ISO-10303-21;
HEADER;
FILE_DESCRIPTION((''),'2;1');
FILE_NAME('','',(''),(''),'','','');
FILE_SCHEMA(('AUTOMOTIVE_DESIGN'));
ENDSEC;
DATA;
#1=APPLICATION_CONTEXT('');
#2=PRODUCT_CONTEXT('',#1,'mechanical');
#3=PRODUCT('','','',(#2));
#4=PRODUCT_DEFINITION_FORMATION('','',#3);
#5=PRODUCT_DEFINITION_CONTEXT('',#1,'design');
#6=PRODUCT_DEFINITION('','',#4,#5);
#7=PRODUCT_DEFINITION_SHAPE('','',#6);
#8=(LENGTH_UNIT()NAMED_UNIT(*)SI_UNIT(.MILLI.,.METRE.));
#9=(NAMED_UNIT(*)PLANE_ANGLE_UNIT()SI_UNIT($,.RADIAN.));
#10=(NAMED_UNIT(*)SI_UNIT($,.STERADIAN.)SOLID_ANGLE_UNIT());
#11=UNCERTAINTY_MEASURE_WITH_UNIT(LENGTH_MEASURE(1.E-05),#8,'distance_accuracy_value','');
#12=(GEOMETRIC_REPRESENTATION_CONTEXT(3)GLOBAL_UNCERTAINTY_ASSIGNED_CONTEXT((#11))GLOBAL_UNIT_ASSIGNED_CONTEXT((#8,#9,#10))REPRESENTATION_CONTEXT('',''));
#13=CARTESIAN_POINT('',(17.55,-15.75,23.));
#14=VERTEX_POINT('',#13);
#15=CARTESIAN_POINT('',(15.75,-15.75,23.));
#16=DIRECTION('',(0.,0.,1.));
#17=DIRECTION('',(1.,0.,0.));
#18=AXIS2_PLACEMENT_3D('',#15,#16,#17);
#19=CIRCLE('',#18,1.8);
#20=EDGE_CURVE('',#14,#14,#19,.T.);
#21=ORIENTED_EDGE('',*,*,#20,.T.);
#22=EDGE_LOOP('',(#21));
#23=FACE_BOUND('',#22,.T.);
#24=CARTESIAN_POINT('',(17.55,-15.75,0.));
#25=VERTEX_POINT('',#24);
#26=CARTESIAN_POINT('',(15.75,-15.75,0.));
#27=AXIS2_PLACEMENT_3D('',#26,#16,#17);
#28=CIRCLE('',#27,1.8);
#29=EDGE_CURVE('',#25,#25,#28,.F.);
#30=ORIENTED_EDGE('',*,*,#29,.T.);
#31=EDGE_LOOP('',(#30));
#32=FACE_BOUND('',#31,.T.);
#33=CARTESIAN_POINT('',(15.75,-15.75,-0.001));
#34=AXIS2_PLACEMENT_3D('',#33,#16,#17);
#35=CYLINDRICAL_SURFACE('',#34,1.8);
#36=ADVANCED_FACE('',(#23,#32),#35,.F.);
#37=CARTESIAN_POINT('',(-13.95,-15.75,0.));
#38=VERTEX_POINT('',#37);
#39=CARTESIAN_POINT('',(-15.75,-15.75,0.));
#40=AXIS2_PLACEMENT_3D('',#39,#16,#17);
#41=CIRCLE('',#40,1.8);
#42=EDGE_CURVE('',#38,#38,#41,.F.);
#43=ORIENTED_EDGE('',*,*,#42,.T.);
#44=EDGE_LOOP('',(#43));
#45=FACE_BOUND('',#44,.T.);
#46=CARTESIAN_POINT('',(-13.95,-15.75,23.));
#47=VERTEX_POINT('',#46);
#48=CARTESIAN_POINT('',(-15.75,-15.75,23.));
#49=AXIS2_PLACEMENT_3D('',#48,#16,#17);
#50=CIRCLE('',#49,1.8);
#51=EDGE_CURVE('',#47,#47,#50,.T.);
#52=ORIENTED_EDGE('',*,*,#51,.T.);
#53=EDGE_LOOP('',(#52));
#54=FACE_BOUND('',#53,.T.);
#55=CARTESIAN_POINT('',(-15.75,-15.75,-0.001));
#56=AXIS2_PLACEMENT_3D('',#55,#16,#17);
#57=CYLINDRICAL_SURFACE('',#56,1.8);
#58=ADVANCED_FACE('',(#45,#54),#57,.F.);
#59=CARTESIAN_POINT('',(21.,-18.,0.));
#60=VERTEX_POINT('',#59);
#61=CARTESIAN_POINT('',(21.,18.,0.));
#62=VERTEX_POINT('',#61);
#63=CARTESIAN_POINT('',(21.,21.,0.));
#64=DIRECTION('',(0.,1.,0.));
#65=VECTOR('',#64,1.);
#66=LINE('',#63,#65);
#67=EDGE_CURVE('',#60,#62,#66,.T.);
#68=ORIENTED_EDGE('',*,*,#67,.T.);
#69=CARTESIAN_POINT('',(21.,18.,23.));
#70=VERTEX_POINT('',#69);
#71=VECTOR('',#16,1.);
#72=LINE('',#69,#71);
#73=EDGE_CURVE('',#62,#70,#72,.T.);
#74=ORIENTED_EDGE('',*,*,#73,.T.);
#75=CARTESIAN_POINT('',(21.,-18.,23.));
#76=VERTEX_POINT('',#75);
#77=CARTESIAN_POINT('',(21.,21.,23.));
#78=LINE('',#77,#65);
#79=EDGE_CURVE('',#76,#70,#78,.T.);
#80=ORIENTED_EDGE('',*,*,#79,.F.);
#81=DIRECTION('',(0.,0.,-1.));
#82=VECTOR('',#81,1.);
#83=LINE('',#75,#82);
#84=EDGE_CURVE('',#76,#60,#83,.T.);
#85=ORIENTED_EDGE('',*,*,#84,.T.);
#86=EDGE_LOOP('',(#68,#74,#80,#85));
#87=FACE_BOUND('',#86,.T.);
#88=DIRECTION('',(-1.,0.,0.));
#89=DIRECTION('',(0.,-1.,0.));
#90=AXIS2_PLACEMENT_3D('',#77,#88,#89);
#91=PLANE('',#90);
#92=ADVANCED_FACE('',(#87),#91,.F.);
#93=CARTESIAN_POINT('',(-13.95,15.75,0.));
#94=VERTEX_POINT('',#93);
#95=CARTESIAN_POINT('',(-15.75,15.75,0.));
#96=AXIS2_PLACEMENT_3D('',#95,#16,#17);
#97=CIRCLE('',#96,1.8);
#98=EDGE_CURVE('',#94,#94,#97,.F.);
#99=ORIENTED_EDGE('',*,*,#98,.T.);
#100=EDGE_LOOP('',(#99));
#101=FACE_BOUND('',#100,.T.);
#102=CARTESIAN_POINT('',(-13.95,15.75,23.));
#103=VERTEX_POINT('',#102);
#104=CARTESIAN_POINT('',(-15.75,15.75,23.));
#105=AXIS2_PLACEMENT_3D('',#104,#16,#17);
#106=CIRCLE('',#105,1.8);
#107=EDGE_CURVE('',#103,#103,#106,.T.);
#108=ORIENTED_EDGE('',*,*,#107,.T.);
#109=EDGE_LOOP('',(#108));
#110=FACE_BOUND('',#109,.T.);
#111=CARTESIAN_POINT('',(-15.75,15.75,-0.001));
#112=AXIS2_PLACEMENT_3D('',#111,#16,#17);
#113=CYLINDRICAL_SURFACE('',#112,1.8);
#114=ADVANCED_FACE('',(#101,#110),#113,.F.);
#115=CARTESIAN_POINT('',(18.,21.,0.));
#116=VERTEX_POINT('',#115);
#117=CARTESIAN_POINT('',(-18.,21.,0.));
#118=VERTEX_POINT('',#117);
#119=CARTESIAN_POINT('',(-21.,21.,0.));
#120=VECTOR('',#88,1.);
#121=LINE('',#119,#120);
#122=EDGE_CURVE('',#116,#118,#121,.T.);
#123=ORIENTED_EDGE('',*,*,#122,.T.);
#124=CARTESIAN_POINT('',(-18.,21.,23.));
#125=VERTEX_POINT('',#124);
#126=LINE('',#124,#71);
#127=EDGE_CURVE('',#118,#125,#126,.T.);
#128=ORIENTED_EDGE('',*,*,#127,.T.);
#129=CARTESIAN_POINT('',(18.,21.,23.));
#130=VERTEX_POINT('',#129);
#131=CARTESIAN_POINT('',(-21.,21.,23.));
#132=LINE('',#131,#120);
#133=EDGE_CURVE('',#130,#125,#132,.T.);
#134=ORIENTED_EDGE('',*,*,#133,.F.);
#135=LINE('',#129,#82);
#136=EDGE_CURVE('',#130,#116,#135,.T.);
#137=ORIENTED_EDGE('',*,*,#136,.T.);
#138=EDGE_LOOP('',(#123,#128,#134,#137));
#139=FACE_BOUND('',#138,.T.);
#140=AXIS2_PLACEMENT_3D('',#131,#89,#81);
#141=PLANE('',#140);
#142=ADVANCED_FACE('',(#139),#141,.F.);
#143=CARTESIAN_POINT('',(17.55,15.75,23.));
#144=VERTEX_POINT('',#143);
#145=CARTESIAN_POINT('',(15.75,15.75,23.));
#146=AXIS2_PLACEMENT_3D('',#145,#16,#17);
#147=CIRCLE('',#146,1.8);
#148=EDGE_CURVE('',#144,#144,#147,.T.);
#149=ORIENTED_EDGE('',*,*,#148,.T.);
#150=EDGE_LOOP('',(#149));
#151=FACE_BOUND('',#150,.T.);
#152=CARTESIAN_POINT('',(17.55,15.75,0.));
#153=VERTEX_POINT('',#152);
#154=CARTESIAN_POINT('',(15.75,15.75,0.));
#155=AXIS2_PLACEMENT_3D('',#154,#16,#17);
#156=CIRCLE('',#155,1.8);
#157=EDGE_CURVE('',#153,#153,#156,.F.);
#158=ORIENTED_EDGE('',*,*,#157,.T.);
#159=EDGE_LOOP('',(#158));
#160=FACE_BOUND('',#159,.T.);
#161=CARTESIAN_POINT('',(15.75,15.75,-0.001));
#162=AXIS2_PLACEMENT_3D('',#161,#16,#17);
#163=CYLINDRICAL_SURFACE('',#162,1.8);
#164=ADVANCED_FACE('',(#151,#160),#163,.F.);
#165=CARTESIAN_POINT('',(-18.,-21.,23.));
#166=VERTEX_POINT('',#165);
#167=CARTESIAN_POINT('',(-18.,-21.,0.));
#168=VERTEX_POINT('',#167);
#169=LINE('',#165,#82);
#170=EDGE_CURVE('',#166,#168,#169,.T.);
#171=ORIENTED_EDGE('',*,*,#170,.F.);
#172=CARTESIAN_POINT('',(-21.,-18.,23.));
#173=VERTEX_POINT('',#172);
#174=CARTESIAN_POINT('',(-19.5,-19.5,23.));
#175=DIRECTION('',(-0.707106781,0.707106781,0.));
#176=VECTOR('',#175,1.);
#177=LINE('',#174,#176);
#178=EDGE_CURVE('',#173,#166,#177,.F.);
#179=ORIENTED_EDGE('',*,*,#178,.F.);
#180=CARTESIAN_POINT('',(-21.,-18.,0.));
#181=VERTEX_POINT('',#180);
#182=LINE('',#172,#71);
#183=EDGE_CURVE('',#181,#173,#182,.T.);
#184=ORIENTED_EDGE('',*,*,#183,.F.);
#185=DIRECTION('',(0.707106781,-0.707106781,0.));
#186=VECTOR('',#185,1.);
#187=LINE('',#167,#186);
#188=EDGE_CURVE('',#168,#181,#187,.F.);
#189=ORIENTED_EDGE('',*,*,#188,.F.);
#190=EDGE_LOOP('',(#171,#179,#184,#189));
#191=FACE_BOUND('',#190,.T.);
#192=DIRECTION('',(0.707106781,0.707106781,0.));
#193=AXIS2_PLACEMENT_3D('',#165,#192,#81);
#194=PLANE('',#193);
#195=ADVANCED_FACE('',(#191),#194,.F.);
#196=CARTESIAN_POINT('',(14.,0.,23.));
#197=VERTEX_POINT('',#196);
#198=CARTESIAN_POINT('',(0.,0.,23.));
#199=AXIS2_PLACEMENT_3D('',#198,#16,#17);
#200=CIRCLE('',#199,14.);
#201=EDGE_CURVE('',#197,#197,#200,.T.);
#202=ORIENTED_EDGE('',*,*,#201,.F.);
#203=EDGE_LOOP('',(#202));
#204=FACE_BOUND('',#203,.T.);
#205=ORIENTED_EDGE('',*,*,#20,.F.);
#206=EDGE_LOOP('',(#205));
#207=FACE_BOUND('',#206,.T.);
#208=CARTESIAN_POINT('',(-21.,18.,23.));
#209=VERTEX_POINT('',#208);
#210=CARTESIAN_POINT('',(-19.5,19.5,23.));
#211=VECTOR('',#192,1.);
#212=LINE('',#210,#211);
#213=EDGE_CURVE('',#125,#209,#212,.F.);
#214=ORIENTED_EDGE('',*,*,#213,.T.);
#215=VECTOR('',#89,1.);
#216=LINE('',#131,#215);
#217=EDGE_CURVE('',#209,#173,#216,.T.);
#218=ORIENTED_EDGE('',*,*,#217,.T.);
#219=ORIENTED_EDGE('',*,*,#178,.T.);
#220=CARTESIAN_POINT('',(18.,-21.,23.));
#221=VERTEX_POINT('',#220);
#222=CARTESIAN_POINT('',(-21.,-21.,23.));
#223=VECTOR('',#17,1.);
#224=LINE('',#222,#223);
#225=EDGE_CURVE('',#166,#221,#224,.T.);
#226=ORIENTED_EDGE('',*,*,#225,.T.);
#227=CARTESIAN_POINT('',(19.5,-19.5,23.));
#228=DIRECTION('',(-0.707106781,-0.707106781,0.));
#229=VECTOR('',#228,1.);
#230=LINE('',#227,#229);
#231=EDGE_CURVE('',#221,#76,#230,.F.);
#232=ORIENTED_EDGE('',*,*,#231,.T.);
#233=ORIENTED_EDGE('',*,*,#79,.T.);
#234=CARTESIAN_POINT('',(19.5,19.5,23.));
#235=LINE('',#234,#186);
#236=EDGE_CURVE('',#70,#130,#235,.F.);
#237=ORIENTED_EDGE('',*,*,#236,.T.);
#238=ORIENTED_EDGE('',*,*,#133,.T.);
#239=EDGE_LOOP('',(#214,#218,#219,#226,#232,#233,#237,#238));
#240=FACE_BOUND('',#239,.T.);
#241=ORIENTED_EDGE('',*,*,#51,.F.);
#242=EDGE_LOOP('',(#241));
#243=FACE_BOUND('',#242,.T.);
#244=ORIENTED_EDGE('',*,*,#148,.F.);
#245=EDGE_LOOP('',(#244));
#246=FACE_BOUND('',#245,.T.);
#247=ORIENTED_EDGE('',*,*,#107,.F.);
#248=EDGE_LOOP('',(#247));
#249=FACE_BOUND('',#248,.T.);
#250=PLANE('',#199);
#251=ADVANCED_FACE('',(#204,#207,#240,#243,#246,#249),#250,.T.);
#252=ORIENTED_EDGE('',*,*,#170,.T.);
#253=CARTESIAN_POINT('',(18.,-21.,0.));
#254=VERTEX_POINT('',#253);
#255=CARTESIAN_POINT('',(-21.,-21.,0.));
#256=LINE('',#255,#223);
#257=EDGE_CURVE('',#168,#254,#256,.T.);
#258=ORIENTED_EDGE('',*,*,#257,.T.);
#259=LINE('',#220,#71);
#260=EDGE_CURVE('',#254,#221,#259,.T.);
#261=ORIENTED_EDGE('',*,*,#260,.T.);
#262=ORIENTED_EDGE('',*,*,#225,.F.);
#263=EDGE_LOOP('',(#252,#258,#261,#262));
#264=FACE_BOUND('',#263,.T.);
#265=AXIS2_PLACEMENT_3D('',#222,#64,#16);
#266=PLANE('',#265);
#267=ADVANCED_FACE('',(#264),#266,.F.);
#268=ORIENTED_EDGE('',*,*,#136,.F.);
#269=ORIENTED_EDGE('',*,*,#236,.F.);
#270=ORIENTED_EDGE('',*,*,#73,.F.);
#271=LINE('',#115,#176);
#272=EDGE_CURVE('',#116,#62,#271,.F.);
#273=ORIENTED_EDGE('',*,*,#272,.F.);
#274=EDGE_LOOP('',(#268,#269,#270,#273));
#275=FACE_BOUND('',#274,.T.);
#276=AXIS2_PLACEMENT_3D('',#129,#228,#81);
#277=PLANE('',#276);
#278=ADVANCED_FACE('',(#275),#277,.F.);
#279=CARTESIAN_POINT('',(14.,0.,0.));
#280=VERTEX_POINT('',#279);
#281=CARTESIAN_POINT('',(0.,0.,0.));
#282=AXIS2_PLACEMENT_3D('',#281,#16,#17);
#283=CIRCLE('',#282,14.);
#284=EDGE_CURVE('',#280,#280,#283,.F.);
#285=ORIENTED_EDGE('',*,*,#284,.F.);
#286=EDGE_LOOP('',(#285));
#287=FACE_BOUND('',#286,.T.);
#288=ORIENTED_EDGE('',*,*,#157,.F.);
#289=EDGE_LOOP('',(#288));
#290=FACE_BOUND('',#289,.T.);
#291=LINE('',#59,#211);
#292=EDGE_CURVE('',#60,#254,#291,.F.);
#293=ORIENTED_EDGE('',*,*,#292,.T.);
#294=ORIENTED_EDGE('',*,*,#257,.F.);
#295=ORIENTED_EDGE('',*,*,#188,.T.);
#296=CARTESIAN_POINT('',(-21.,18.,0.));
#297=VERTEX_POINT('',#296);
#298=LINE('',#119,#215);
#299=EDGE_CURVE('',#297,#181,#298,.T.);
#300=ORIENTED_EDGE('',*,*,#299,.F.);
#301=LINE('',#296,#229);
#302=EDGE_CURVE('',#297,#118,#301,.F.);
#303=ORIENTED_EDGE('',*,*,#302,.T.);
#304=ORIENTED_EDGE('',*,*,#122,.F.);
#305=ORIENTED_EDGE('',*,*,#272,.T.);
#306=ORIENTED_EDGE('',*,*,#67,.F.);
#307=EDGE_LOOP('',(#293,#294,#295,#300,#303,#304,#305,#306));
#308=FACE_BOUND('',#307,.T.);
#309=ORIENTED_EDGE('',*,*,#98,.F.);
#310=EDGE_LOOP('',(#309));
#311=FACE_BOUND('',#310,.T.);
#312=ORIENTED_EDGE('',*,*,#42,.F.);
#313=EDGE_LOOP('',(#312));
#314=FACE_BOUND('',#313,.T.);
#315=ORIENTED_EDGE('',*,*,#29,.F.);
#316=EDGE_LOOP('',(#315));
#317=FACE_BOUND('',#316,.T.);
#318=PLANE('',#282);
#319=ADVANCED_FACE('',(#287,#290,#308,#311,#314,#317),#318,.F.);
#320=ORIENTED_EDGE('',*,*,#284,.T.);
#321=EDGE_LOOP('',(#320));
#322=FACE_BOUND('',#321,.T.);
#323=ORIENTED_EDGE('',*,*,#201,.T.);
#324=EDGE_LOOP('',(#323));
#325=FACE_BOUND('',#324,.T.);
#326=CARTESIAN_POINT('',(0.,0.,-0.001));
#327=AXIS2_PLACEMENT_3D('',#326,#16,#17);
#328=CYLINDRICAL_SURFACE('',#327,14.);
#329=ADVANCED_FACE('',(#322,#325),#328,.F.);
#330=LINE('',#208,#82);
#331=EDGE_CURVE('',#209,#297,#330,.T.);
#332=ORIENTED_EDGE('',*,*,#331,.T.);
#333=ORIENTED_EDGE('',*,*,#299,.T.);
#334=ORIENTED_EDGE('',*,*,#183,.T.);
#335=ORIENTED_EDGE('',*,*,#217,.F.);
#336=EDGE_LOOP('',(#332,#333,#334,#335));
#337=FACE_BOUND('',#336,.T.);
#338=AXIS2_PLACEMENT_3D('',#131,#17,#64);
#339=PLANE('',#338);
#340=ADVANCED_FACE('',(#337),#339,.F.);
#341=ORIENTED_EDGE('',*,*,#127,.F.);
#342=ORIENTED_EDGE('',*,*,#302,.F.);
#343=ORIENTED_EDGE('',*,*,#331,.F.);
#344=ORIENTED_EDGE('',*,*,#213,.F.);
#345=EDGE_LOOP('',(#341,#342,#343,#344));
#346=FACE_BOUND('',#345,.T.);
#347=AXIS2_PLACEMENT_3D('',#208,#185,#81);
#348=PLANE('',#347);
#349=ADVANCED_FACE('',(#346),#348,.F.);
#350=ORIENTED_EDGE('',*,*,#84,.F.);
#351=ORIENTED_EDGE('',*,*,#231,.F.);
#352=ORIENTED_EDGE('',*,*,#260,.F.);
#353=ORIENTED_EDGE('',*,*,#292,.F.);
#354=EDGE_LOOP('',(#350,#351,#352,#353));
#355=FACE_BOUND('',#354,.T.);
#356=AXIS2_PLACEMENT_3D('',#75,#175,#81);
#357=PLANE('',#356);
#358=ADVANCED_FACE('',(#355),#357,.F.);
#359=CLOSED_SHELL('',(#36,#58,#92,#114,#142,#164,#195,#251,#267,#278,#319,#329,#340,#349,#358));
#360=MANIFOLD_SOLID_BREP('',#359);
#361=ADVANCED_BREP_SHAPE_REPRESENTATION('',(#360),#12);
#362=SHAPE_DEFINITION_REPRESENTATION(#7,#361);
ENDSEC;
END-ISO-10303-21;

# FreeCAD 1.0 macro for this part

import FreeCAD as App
import Part
import Sketcher

V = App.Vector


def edges_at(feature, points):
    """Names of the edges that pass closest to the given points."""
    edges = feature.Shape.Edges
    near = lambda p: min(range(len(edges)), key=lambda i: edges[i].distToShape(Part.Vertex(*p))[0])
    return sorted({f"Edge{near(p) + 1}" for p in points})


def add_polygon(sketch, points):
    """Adds a closed chain of lines whose ends are joined by coincident constraints."""
    first, n = sketch.GeometryCount, len(points)
    for a, b in zip(points, points[1:] + points[:1]):
        sketch.addGeometry(Part.LineSegment(App.Vector(*a, 0), App.Vector(*b, 0)), False)
    for i in range(n):
        sketch.addConstraint(Sketcher.Constraint("Coincident", first + i, 2, first + (i + 1) % n, 1))

doc = App.newDocument("Part")
body = doc.addObject("PartDesign::Body", "Body")

# Sketch on XY plane
sketch1 = doc.addObject("Sketcher::SketchObject", "Sketch")
body.addObject(sketch1)
sketch1.AttachmentSupport = (doc.XY_Plane, [""])
sketch1.MapMode = "FlatFace"
add_polygon(sketch1, [(-21, 21), (-21, -21), (21, -21), (21, 21)])  # lines 0-3
sketch1.addConstraint([
    Sketcher.Constraint("Vertical", 0),
    Sketcher.Constraint("Horizontal", 1),
    Sketcher.Constraint("Vertical", 2),
    Sketcher.Constraint("Horizontal", 3),
    Sketcher.Constraint("Symmetric", 0, 2, 2, 2, -1, 1),
    Sketcher.Constraint("Equal", 3, 0),
    Sketcher.Constraint("DistanceX", 1, 1, 1, 2, 42.0),
])
pad1 = doc.addObject("PartDesign::Pad", "Pad")
body.addObject(pad1)
pad1.Profile = sketch1
pad1.Length = 23
doc.recompute()

chamfer = doc.addObject("PartDesign::Chamfer", "Chamfer")
body.addObject(chamfer)
chamfer.Base = (pad1, edges_at(pad1, [
    (21, -21, 11.5),
    (-21, -21, 11.5),
    (-21, 21, 11.5),
    (21, 21, 11.5),
]))
chamfer.Size = 3

# Sketch on XY plane
sketch2 = doc.addObject("Sketcher::SketchObject", "Sketch001")
body.addObject(sketch2)
sketch2.AttachmentSupport = (doc.XY_Plane, [""])
sketch2.MapMode = "FlatFace"
sketch2.AttachmentOffset = App.Placement(V(0, 0, 23), App.Rotation())
sketch2.addGeometry(Part.Circle(V(-15.8, 15.8, 0), V(0, 0, 1), 1.8), False)
sketch2.addConstraint([
    Sketcher.Constraint("Diameter", 0, 3.6),
    Sketcher.Constraint("DistanceX", 0, 3, -1, 1, 15.75),
    Sketcher.Constraint("DistanceY", -1, 1, 0, 3, 15.75),
])
pocket1 = doc.addObject("PartDesign::Pocket", "Pocket")
body.addObject(pocket1)
pocket1.Profile = sketch2
pocket1.Type = "UpToFirst"

# Sketch on XY plane
sketch3 = doc.addObject("Sketcher::SketchObject", "Sketch002")
body.addObject(sketch3)
sketch3.AttachmentSupport = (doc.XY_Plane, [""])
sketch3.MapMode = "FlatFace"
sketch3.AttachmentOffset = App.Placement(V(0, 0, 23), App.Rotation())
sketch3.addGeometry(Part.Circle(V(15.8, 15.8, 0), V(0, 0, 1), 1.8), False)
sketch3.addConstraint([
    Sketcher.Constraint("Diameter", 0, 3.6),
    Sketcher.Constraint("DistanceX", -1, 1, 0, 3, 15.75),
    Sketcher.Constraint("DistanceY", -1, 1, 0, 3, 15.75),
])
pocket2 = doc.addObject("PartDesign::Pocket", "Pocket001")
body.addObject(pocket2)
pocket2.Profile = sketch3
pocket2.Type = "UpToFirst"

# Sketch on XY plane
sketch4 = doc.addObject("Sketcher::SketchObject", "Sketch003")
body.addObject(sketch4)
sketch4.AttachmentSupport = (doc.XY_Plane, [""])
sketch4.MapMode = "FlatFace"
sketch4.AttachmentOffset = App.Placement(V(0, 0, 23), App.Rotation())
sketch4.addGeometry(Part.Circle(V(-15.8, -15.8, 0), V(0, 0, 1), 1.8), False)
sketch4.addConstraint([
    Sketcher.Constraint("Diameter", 0, 3.6),
    Sketcher.Constraint("DistanceX", 0, 3, -1, 1, 15.75),
    Sketcher.Constraint("DistanceY", 0, 3, -1, 1, 15.75),
])
pocket3 = doc.addObject("PartDesign::Pocket", "Pocket002")
body.addObject(pocket3)
pocket3.Profile = sketch4
pocket3.Type = "UpToFirst"

# Sketch on XY plane
sketch5 = doc.addObject("Sketcher::SketchObject", "Sketch004")
body.addObject(sketch5)
sketch5.AttachmentSupport = (doc.XY_Plane, [""])
sketch5.MapMode = "FlatFace"
sketch5.AttachmentOffset = App.Placement(V(0, 0, 23), App.Rotation())
sketch5.addGeometry(Part.Circle(V(15.8, -15.8, 0), V(0, 0, 1), 1.8), False)
sketch5.addConstraint([
    Sketcher.Constraint("Diameter", 0, 3.6),
    Sketcher.Constraint("DistanceX", -1, 1, 0, 3, 15.75),
    Sketcher.Constraint("DistanceY", 0, 3, -1, 1, 15.75),
])
pocket4 = doc.addObject("PartDesign::Pocket", "Pocket003")
body.addObject(pocket4)
pocket4.Profile = sketch5
pocket4.Type = "UpToFirst"

# Sketch on XY plane
sketch6 = doc.addObject("Sketcher::SketchObject", "Sketch005")
body.addObject(sketch6)
sketch6.AttachmentSupport = (doc.XY_Plane, [""])
sketch6.MapMode = "FlatFace"
sketch6.AttachmentOffset = App.Placement(V(0, 0, 23), App.Rotation())
sketch6.addGeometry(Part.Circle(V(0, 0, 0), V(0, 0, 1), 14), False)
sketch6.addConstraint([
    Sketcher.Constraint("Coincident", 0, 3, -1, 1),
    Sketcher.Constraint("Diameter", 0, 28.0),
])
pocket5 = doc.addObject("PartDesign::Pocket", "Pocket004")
body.addObject(pocket5)
pocket5.Profile = sketch6
pocket5.Type = "UpToFirst"

doc.recompute()
